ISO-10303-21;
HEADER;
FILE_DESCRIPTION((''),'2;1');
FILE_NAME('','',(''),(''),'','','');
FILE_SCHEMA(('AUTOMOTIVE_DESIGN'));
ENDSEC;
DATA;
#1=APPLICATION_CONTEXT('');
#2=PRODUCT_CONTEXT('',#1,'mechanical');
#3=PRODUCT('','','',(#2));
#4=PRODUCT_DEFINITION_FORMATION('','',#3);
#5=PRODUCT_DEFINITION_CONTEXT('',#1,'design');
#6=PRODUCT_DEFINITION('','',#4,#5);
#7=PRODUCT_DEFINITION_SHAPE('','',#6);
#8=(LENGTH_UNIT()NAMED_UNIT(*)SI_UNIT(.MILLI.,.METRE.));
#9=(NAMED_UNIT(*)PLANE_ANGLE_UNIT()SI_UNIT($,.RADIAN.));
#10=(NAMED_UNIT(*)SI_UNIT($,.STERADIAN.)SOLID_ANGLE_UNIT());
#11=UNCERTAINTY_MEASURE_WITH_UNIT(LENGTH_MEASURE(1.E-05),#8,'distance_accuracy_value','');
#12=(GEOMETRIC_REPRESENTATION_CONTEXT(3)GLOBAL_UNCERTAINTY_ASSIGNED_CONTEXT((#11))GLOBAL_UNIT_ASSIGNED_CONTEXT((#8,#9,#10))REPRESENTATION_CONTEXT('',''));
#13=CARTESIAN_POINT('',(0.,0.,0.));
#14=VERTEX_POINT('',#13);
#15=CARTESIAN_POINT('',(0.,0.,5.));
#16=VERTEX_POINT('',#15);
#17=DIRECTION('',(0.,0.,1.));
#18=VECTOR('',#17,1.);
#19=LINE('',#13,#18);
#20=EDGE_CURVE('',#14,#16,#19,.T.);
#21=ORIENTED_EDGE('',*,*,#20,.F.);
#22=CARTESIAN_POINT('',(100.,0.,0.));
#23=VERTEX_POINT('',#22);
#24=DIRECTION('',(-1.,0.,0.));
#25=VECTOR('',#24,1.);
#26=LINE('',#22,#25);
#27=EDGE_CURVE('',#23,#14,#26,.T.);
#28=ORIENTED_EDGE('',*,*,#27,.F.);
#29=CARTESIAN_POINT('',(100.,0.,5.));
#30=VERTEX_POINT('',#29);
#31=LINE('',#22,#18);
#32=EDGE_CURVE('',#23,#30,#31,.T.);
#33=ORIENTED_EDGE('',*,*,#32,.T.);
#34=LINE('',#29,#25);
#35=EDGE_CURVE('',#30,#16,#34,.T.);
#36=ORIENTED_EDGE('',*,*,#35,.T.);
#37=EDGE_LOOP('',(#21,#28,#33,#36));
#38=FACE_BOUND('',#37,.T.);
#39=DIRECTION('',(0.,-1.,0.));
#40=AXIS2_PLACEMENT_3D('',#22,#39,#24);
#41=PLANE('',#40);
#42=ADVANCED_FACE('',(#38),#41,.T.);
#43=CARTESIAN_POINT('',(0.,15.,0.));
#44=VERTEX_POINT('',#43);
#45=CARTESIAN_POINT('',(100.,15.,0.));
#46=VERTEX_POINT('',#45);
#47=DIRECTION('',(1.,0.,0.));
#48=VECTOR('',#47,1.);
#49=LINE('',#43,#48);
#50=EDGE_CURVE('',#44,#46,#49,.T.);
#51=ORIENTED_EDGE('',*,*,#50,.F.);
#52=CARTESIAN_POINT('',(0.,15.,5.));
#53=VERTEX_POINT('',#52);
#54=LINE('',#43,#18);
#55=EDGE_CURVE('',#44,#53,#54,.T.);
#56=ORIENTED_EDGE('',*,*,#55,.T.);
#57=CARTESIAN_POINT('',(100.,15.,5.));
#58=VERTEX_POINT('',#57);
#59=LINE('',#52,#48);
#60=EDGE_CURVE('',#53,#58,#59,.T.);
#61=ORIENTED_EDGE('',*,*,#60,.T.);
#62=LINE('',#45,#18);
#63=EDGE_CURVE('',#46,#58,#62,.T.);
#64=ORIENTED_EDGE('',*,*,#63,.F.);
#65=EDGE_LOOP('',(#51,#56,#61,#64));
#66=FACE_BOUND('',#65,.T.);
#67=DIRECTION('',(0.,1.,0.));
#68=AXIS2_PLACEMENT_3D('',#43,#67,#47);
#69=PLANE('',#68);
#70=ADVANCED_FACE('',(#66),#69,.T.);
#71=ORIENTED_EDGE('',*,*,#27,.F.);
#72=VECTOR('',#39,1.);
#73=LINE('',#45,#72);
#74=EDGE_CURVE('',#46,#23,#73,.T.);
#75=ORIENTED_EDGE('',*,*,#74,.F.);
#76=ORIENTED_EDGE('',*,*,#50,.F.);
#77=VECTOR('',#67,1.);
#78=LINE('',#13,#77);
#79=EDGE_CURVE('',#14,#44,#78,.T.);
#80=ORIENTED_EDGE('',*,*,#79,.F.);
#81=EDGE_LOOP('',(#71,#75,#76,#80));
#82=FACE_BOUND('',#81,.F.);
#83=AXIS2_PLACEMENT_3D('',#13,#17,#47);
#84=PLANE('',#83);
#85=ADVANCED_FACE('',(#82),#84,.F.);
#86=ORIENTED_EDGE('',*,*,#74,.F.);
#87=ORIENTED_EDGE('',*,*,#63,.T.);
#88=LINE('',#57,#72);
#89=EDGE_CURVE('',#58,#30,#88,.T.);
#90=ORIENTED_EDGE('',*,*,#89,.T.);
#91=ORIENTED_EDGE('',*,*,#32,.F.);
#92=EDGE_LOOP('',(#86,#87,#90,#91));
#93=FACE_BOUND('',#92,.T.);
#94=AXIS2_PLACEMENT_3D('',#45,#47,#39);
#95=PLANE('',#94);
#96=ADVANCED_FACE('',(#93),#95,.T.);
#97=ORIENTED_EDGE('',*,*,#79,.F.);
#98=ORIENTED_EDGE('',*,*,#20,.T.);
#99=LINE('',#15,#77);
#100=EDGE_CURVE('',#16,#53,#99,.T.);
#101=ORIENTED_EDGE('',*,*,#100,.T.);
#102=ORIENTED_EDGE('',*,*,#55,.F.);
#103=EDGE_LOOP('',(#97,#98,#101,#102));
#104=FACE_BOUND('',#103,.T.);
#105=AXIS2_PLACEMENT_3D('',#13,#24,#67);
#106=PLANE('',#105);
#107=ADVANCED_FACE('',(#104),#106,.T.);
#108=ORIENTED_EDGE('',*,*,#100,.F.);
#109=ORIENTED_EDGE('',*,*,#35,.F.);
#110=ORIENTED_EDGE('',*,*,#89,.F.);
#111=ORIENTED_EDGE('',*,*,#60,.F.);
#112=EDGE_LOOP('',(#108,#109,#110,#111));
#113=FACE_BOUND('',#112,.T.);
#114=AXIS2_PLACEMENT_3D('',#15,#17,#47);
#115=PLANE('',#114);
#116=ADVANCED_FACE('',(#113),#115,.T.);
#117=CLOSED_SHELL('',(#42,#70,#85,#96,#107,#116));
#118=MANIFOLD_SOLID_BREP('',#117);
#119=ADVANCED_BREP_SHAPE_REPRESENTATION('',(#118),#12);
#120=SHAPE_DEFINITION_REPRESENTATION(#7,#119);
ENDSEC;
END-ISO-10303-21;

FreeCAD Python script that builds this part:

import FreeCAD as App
import Part
import Sketcher

V = App.Vector
Q = App.Units.Quantity

doc = App.newDocument("Part")
params = doc.addObject("Spreadsheet::Sheet", "Params")
for row, (alias, value) in enumerate([
    ("sketch1_width", "100 mm"),
    ("sketch1_height", "15 mm"),
    ("pad1_length", "5 mm"),
], start=1):
    params.set(f"A{row}", alias)
    params.set(f"B{row}", "=" + value)
    params.setAlias(f"B{row}", alias)

body = doc.addObject("PartDesign::Body", "Body")

# Sketch on XY plane
sketch1 = doc.addObject("Sketcher::SketchObject", "Sketch")
body.addObject(sketch1)
sketch1.AttachmentSupport = (doc.XY_Plane, [""])
sketch1.MapMode = "FlatFace"
sketch1.addGeometry(Part.LineSegment(V(0, 15, 0), V(0, 0, 0)), False)
sketch1.addGeometry(Part.LineSegment(V(0, 0, 0), V(100, 0, 0)), False)
sketch1.addGeometry(Part.LineSegment(V(100, 0, 0), V(100, 15, 0)), False)
sketch1.addGeometry(Part.LineSegment(V(100, 15, 0), V(0, 15, 0)), False)
sketch1.addConstraint(Sketcher.Constraint("Coincident", 0, 2, 1, 1))
sketch1.addConstraint(Sketcher.Constraint("Coincident", 1, 2, 2, 1))
sketch1.addConstraint(Sketcher.Constraint("Coincident", 2, 2, 3, 1))
sketch1.addConstraint(Sketcher.Constraint("Coincident", 3, 2, 0, 1))
sketch1.addConstraint(Sketcher.Constraint("Vertical", 0))
sketch1.addConstraint(Sketcher.Constraint("Horizontal", 1))
sketch1.addConstraint(Sketcher.Constraint("Vertical", 2))
sketch1.addConstraint(Sketcher.Constraint("Horizontal", 3))
sketch1.addConstraint(Sketcher.Constraint("Coincident", 0, 2, -1, 1))
sketch1.addConstraint(Sketcher.Constraint("DistanceX", 1, 1, 1, 2, Q("100 mm")))
sketch1.addConstraint(Sketcher.Constraint("DistanceY", 0, 2, 0, 1, Q("15 mm")))
sketch1.setExpression("Constraints[9]", "Params.sketch1_width")
sketch1.setExpression("Constraints[10]", "Params.sketch1_height")
pad1 = doc.addObject("PartDesign::Pad", "Pad")
body.addObject(pad1)
pad1.Profile = sketch1
pad1.setExpression("Length", "Params.pad1_length")

doc.recompute()
